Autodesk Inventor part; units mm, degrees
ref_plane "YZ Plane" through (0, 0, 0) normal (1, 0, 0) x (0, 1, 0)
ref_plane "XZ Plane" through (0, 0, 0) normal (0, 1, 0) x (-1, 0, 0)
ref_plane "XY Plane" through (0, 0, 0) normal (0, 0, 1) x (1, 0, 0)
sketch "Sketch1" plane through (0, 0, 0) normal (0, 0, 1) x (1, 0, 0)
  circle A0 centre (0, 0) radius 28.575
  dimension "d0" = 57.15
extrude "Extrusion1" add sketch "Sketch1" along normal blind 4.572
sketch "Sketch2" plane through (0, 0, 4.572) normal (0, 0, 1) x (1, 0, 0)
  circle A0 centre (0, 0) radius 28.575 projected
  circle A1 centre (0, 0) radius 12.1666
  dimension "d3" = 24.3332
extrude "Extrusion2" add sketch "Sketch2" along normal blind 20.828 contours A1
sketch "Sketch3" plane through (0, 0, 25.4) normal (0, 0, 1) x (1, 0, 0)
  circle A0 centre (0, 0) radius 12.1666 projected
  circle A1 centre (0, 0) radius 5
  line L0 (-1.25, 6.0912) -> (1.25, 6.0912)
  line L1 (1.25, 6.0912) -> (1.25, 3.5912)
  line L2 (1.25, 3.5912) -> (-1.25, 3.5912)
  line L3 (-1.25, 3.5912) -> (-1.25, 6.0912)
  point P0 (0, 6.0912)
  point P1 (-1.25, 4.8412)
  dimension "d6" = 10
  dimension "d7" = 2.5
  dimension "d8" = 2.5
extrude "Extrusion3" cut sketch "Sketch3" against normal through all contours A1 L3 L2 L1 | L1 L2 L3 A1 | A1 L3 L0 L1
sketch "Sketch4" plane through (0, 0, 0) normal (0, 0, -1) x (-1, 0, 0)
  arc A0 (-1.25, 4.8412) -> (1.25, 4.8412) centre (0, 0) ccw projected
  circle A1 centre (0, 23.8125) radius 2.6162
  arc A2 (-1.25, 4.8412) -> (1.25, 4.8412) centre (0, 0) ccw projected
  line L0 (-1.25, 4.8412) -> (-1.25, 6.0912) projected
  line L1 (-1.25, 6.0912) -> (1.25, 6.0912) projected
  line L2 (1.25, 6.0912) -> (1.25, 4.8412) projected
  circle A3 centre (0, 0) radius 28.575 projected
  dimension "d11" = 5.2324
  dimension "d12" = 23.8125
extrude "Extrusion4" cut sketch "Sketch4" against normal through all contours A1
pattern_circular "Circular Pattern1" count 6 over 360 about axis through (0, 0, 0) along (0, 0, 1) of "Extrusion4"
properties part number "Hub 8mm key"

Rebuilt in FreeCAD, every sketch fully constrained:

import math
import FreeCAD as App
import Part
import Sketcher

V = App.Vector
Q = App.Units.Quantity

doc = App.newDocument("Part")
body = doc.addObject("PartDesign::Body", "Body")

sketch1 = body.newObject("Sketcher::SketchObject", "Sketch")
sketch1.AttachmentSupport = (doc.getObject("XY_Plane"), [""])
sketch1.MapMode = "FlatFace"
sketch1.addGeometry(Part.Circle(V(0, 0, 0), V(0, 0, 1), 28.575), False)
sketch1.addConstraint([
    Sketcher.Constraint("Coincident", 0, 3, -1, 1),
    Sketcher.Constraint("Diameter", 0, Q("2.25 in")),
])
pad1 = body.newObject("PartDesign::Pad", "Pad")
pad1.Profile = sketch1
pad1.Length = Q("0.18 in")

sketch2 = body.newObject("Sketcher::SketchObject", "Sketch001")
sketch2.AttachmentSupport = (doc.getObject("XY_Plane"), [""])
sketch2.MapMode = "FlatFace"
sketch2.AttachmentOffset = App.Placement(V(0, 0, 0.18 * 25.4), App.Rotation())
sketch2.addGeometry(Part.Circle(V(0, 0, 0), V(0, 0, 1), 12.1666), False)
sketch2.addConstraint([
    Sketcher.Constraint("Coincident", 0, 3, -1, 1),
    Sketcher.Constraint("Diameter", 0, Q("0.958 in")),
])
pad2 = body.newObject("PartDesign::Pad", "Pad001")
pad2.Profile = sketch2
pad2.Length = Q("0.82 in")

sketch3 = body.newObject("Sketcher::SketchObject", "Sketch002")
sketch3.AttachmentSupport = (doc.getObject("XY_Plane"), [""])
sketch3.MapMode = "FlatFace"
sketch3.AttachmentOffset = App.Placement(V(0, 0, 1 * 25.4), App.Rotation())
sketch3.addGeometry([
    Part.ArcOfCircle(Part.Circle(V(0, 0, 0), V(0, 0, 1), 5), math.radians(104.477512), math.radians(435.522488)),
    Part.LineSegment(V(1.25, 4.841229, 0), V(1.25, 6.0912, 0)),
    Part.LineSegment(V(1.25, 6.0912, 0), V(-1.25, 6.0912, 0)),
    Part.LineSegment(V(-1.25, 6.0912, 0), V(-1.25, 4.841229, 0)),
], False)
sketch3.addConstraint([
    Sketcher.Constraint("Coincident", 0, 2, 1, 1),
    Sketcher.Constraint("Coincident", 1, 2, 2, 1),
    Sketcher.Constraint("Coincident", 2, 2, 3, 1),
    Sketcher.Constraint("Coincident", 3, 2, 0, 1),
    Sketcher.Constraint("Vertical", 1),
    Sketcher.Constraint("Horizontal", 2),
    Sketcher.Constraint("Vertical", 3),
    Sketcher.Constraint("Coincident", 0, 3, -1, 1),
    Sketcher.Constraint("Horizontal", 0, 2, 3, 2),
    Sketcher.Constraint("Radius", 0, Q("5 mm")),
    Sketcher.Constraint("DistanceX", 2, 2, 2, 1, Q("2.5 mm")),
    Sketcher.Constraint("DistanceY", 1, 1, 1, 2, Q("0.0492 in")),
])
pocket1 = body.newObject("PartDesign::Pocket", "Pocket")
pocket1.Profile = sketch3
pocket1.Type = "ThroughAll"

sketch4 = body.newObject("Sketcher::SketchObject", "Sketch003")
sketch4.AttachmentSupport = (doc.getObject("XY_Plane"), [""])
sketch4.MapMode = "FlatFace"
sketch4.addGeometry(Part.Circle(V(0, 23.8125, 0), V(0, 0, 1), 2.6162), False)
sketch4.addConstraint([
    Sketcher.Constraint("PointOnObject", 0, 3, -2),
    Sketcher.Constraint("Diameter", 0, Q("0.206 in")),
    Sketcher.Constraint("DistanceY", -1, 1, 0, 3, Q("0.9375 in")),
])
pocket2 = body.newObject("PartDesign::Pocket", "Pocket001")
pocket2.Profile = sketch4
pocket2.Type = "ThroughAll"
pocket2.Reversed = True
doc.recompute()

polarpattern = body.newObject("PartDesign::PolarPattern", "PolarPattern")
polarpattern.Originals = [pocket2]
polarpattern.Axis = (doc.getObject("Z_Axis"), [""])
polarpattern.Angle = 360
polarpattern.Occurrences = 6
body.Tip = polarpattern

doc.recompute()
